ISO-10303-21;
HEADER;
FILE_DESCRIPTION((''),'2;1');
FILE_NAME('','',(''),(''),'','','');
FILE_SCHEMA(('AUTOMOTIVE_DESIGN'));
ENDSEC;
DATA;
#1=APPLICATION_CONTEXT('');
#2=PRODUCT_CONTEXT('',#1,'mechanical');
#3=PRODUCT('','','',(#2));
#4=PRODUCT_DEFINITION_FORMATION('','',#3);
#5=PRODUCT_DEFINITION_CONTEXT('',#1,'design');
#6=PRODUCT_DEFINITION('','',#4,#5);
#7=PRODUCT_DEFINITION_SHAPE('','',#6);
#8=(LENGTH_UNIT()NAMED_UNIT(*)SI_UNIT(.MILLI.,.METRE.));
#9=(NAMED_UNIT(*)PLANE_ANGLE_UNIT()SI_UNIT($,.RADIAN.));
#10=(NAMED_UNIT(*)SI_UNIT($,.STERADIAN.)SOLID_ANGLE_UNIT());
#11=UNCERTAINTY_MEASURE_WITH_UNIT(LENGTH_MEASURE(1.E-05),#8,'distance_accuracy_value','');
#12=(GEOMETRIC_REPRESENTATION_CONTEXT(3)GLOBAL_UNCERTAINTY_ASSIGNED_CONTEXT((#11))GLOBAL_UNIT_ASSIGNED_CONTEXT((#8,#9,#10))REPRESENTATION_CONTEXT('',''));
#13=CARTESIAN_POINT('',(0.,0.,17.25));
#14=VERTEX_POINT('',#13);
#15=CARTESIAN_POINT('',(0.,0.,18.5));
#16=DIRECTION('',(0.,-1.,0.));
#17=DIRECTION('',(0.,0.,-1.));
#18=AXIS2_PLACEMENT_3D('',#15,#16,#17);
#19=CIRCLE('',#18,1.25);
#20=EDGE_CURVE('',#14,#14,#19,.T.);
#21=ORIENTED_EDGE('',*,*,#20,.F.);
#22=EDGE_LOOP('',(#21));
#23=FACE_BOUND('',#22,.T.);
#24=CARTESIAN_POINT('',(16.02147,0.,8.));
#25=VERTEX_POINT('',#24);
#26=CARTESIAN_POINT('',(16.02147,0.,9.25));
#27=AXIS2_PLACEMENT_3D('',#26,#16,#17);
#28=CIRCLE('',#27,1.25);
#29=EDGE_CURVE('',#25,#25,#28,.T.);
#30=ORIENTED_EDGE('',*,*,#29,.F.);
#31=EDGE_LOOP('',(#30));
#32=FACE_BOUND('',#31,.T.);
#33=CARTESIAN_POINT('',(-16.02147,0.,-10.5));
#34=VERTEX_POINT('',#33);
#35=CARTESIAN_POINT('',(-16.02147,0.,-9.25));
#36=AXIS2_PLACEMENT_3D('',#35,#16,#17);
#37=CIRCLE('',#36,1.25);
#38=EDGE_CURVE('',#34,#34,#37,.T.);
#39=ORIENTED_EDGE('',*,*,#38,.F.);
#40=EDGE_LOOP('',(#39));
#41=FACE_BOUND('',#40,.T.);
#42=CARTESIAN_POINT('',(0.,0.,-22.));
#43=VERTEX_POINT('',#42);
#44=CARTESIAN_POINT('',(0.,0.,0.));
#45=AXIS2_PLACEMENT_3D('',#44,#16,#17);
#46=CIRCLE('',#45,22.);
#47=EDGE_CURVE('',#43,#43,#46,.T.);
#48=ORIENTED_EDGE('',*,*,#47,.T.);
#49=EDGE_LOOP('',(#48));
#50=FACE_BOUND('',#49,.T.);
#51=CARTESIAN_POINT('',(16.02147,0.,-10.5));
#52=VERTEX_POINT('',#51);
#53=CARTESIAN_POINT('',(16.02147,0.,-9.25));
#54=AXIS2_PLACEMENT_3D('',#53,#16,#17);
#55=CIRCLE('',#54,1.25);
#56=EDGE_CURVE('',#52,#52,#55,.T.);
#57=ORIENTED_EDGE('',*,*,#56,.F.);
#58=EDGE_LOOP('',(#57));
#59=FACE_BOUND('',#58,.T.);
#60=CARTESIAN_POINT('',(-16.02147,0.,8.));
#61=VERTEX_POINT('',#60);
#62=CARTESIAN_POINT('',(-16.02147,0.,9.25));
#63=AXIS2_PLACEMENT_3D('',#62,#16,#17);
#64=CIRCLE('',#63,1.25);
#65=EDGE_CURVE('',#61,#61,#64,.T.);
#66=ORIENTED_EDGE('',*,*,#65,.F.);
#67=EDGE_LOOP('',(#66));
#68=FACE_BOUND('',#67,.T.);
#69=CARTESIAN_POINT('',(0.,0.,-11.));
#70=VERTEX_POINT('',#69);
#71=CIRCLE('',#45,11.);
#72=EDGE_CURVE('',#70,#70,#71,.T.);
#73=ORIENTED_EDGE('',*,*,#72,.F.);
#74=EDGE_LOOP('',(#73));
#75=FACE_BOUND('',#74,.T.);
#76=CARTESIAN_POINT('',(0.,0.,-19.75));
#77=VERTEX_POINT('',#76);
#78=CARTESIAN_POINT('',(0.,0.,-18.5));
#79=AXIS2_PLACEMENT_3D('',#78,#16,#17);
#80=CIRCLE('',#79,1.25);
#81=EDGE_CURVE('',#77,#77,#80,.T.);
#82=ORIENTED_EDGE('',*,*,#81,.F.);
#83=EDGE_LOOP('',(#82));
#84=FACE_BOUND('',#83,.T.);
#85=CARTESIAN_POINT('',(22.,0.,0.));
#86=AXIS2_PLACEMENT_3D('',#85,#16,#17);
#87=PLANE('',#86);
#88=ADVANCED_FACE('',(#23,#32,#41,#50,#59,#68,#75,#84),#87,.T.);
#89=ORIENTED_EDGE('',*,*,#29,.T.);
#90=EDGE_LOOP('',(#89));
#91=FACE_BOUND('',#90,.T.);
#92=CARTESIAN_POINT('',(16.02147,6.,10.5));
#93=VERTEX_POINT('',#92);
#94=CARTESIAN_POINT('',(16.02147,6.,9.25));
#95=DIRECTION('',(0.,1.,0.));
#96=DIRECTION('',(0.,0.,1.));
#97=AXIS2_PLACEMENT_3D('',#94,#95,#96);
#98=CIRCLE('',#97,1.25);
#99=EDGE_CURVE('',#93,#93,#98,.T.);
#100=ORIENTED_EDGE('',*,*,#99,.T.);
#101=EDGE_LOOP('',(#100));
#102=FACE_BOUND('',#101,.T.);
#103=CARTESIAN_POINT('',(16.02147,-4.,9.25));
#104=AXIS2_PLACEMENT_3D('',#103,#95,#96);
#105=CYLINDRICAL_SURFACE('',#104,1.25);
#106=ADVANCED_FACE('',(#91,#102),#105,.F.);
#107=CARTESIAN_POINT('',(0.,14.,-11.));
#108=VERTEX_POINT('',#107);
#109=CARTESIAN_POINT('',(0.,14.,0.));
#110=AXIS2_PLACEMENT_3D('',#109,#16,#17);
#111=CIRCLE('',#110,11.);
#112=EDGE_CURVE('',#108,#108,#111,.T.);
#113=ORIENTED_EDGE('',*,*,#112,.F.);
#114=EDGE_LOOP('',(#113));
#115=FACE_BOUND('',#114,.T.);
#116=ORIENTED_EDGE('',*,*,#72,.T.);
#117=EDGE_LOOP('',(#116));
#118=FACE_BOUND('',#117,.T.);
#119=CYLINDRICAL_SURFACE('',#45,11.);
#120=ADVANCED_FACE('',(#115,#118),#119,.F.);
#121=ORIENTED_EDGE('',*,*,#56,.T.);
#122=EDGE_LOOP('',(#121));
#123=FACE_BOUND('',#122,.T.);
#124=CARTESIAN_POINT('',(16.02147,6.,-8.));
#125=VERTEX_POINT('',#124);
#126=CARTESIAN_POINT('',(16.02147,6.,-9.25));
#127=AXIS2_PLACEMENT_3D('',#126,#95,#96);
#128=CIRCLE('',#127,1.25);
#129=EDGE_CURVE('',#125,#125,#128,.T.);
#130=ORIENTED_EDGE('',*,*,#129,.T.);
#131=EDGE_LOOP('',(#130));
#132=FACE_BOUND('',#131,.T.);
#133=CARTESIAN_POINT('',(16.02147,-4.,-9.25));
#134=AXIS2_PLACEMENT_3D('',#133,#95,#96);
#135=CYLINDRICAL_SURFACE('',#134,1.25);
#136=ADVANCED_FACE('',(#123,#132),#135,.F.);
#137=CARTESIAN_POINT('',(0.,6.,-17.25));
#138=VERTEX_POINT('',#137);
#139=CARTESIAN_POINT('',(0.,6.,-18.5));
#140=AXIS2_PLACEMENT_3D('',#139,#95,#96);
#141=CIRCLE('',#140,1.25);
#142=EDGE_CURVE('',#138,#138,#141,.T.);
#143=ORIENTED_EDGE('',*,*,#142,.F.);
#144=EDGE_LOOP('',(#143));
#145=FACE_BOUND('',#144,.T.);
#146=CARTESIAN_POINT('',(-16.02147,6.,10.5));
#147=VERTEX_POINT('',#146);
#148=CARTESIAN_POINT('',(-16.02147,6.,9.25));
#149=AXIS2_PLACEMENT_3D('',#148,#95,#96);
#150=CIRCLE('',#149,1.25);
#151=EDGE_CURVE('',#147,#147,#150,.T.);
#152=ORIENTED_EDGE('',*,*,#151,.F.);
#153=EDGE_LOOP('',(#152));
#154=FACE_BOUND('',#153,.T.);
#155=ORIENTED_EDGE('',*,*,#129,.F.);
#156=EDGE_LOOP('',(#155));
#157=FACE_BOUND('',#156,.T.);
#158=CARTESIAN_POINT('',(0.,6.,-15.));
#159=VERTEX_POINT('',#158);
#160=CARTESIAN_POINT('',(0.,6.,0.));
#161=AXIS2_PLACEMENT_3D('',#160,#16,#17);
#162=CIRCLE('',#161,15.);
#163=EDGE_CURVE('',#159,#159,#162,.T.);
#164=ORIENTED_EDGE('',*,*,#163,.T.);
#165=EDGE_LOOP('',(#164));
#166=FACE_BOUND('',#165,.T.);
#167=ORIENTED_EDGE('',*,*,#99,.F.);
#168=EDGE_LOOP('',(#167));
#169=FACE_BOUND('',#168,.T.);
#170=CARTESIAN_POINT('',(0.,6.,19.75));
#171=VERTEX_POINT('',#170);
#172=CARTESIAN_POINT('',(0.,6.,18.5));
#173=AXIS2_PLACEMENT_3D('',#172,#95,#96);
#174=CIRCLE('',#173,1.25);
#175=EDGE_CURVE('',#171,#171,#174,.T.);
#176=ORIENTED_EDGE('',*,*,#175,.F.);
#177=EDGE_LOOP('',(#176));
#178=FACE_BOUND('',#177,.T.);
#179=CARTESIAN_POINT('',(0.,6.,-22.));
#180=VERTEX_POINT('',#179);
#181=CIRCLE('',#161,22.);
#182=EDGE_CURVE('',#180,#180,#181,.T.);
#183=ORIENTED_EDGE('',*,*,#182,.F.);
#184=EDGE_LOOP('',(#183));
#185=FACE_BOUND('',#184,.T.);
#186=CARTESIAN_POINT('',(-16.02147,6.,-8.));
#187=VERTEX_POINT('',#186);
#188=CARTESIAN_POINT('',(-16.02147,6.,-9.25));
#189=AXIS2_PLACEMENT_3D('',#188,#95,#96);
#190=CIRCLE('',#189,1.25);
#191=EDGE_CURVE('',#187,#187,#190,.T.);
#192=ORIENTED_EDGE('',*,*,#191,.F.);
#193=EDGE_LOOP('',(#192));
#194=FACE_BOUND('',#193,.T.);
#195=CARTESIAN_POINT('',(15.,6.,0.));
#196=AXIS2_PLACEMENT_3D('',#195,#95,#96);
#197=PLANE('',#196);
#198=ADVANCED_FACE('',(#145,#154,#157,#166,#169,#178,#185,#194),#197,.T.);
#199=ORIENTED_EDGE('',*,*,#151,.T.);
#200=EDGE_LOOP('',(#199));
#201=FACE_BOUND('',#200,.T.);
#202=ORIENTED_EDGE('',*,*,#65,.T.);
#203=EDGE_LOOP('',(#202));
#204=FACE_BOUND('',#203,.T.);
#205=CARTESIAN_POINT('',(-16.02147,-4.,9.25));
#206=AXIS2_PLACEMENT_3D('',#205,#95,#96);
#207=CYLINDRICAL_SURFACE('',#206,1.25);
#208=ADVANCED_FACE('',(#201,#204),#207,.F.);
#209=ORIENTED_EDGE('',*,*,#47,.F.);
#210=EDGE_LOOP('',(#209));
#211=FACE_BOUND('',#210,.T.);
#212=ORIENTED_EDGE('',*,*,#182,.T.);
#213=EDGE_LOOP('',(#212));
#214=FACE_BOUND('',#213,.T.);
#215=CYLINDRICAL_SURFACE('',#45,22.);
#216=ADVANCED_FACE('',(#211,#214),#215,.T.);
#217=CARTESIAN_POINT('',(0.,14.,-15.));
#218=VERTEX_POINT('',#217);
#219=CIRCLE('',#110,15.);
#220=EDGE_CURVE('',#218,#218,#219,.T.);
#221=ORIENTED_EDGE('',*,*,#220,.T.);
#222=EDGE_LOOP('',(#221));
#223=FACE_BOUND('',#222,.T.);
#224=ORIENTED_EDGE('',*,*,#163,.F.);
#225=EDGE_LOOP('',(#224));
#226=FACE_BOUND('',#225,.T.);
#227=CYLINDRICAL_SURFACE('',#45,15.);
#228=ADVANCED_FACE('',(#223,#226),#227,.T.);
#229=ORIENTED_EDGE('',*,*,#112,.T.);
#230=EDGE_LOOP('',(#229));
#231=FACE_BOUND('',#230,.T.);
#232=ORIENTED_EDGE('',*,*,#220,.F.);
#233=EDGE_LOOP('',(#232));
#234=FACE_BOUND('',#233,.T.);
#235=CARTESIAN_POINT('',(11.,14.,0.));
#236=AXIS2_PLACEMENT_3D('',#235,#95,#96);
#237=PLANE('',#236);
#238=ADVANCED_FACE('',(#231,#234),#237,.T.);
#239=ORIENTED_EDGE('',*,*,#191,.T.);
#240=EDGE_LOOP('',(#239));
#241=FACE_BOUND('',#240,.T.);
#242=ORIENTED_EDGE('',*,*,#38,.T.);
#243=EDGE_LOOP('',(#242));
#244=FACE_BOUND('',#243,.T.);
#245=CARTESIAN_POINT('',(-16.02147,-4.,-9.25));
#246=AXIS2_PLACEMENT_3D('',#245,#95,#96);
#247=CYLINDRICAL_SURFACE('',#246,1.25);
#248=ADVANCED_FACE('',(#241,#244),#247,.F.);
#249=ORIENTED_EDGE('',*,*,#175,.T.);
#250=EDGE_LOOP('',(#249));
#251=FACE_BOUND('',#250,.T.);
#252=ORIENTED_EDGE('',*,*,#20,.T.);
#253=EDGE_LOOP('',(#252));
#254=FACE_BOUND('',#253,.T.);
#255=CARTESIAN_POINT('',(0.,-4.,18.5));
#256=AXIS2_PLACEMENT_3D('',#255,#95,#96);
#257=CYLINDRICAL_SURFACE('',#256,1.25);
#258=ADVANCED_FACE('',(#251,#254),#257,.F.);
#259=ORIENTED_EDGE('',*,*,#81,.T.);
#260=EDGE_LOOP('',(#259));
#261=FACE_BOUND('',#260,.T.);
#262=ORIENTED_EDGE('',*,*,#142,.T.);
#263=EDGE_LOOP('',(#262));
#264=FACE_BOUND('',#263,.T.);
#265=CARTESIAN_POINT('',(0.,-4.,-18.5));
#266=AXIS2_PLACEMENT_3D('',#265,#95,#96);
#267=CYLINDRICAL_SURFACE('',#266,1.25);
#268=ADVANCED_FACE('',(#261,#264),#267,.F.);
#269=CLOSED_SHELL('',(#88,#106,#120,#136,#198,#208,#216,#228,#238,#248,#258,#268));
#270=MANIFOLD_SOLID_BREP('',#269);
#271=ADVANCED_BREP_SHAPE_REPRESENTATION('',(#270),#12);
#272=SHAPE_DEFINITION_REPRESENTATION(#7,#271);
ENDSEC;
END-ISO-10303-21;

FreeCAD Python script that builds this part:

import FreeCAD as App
import Part
import Sketcher
from FreeCAD import Vector
Q = App.Units.Quantity


def add_polygon(sketch, points):
    """Adds a closed chain of lines whose ends are joined by coincident constraints."""
    first, n = sketch.GeometryCount, len(points)
    for a, b in zip(points, points[1:] + points[:1]):
        sketch.addGeometry(Part.LineSegment(App.Vector(*a, 0), App.Vector(*b, 0)), False)
    for i in range(n):
        sketch.addConstraint(Sketcher.Constraint("Coincident", first + i, 2, first + (i + 1) % n, 1))

doc = App.newDocument("Part")
body = doc.addObject("PartDesign::Body", "Body")

sketch1 = body.newObject("Sketcher::SketchObject", "Sketch")
sketch1.AttachmentSupport = (doc.getObject("XY_Plane"), [""])
sketch1.MapMode = "FlatFace"
add_polygon(sketch1, [(11, 14), (11, 0), (22, 0), (22, 6), (15, 6), (15, 14)])
sketch1.addConstraint([
    Sketcher.Constraint("Vertical", 0),
    Sketcher.Constraint("Horizontal", 1),
    Sketcher.Constraint("Vertical", 2),
    Sketcher.Constraint("Horizontal", 3),
    Sketcher.Constraint("Vertical", 4),
    Sketcher.Constraint("Horizontal", 5),
    Sketcher.Constraint("PointOnObject", 0, 2, -1),
    Sketcher.Constraint("DistanceX", 1, 1, 1, 2, Q("11 mm")),
    Sketcher.Constraint("DistanceX", 3, 2, 3, 1, Q("7 mm")),
    Sketcher.Constraint("DistanceY", 0, 2, 0, 1, Q("14 mm")),
    Sketcher.Constraint("DistanceY", 2, 1, 2, 2, Q("6 mm")),
    Sketcher.Constraint("DistanceX", -1, 1, 0, 2, Q("11 mm")),
])
revolution = body.newObject("PartDesign::Revolution", "Revolution")
revolution.Profile = sketch1
revolution.ReferenceAxis = (sketch1, ["V_Axis"])
revolution.Angle = 360

sketch2 = body.newObject("Sketcher::SketchObject", "Sketch001")
sketch2.AttachmentSupport = (doc.getObject("XZ_Plane"), [""])
sketch2.MapMode = "FlatFace"
sketch2.AttachmentOffset = App.Placement(Vector(0, 0, -6), App.Rotation())
sketch2.addGeometry([
    Part.Circle(Vector(0, -18.5, 0), Vector(0, 0, 1), 1.2),
    Part.Circle(Vector(16, -9.2, 0), Vector(0, 0, 1), 1.2),
    Part.Circle(Vector(16, 9.2, 0), Vector(0, 0, 1), 1.2),
    Part.Circle(Vector(0, 18.5, 0), Vector(0, 0, 1), 1.2),
    Part.Circle(Vector(-16, 9.2, 0), Vector(0, 0, 1), 1.2),
    Part.Circle(Vector(-16, -9.2, 0), Vector(0, 0, 1), 1.2),
], False)
sketch2.addConstraint([
    Sketcher.Constraint("Equal", 0, 1),
    Sketcher.Constraint("Equal", 1, 2),
    Sketcher.Constraint("Equal", 2, 3),
    Sketcher.Constraint("Equal", 3, 4),
    Sketcher.Constraint("Equal", 4, 5),
    Sketcher.Constraint("Symmetric", 0, 3, 3, 3, -1, 1),
    Sketcher.Constraint("Symmetric", 1, 3, 4, 3, -1, 1),
    Sketcher.Constraint("Symmetric", 2, 3, 5, 3, -1, 1),
    Sketcher.Constraint("Symmetric", 2, 3, 4, 3, -2),
    Sketcher.Constraint("PointOnObject", 0, 3, -2),
    Sketcher.Constraint("Diameter", 0, Q("2.5 mm")),
    Sketcher.Constraint("DistanceY", 0, 3, 3, 3, Q("37 mm")),
    Sketcher.Constraint("DistanceY", 1, 3, 2, 3, Q("18.5 mm")),
    Sketcher.Constraint("DistanceX", -1, 1, 1, 3, Q("16.02147 mm")),
])
pocket1 = body.newObject("PartDesign::Pocket", "Pocket")
pocket1.Profile = sketch2
pocket1.Length = 10
pocket1.Reversed = True

doc.recompute()
